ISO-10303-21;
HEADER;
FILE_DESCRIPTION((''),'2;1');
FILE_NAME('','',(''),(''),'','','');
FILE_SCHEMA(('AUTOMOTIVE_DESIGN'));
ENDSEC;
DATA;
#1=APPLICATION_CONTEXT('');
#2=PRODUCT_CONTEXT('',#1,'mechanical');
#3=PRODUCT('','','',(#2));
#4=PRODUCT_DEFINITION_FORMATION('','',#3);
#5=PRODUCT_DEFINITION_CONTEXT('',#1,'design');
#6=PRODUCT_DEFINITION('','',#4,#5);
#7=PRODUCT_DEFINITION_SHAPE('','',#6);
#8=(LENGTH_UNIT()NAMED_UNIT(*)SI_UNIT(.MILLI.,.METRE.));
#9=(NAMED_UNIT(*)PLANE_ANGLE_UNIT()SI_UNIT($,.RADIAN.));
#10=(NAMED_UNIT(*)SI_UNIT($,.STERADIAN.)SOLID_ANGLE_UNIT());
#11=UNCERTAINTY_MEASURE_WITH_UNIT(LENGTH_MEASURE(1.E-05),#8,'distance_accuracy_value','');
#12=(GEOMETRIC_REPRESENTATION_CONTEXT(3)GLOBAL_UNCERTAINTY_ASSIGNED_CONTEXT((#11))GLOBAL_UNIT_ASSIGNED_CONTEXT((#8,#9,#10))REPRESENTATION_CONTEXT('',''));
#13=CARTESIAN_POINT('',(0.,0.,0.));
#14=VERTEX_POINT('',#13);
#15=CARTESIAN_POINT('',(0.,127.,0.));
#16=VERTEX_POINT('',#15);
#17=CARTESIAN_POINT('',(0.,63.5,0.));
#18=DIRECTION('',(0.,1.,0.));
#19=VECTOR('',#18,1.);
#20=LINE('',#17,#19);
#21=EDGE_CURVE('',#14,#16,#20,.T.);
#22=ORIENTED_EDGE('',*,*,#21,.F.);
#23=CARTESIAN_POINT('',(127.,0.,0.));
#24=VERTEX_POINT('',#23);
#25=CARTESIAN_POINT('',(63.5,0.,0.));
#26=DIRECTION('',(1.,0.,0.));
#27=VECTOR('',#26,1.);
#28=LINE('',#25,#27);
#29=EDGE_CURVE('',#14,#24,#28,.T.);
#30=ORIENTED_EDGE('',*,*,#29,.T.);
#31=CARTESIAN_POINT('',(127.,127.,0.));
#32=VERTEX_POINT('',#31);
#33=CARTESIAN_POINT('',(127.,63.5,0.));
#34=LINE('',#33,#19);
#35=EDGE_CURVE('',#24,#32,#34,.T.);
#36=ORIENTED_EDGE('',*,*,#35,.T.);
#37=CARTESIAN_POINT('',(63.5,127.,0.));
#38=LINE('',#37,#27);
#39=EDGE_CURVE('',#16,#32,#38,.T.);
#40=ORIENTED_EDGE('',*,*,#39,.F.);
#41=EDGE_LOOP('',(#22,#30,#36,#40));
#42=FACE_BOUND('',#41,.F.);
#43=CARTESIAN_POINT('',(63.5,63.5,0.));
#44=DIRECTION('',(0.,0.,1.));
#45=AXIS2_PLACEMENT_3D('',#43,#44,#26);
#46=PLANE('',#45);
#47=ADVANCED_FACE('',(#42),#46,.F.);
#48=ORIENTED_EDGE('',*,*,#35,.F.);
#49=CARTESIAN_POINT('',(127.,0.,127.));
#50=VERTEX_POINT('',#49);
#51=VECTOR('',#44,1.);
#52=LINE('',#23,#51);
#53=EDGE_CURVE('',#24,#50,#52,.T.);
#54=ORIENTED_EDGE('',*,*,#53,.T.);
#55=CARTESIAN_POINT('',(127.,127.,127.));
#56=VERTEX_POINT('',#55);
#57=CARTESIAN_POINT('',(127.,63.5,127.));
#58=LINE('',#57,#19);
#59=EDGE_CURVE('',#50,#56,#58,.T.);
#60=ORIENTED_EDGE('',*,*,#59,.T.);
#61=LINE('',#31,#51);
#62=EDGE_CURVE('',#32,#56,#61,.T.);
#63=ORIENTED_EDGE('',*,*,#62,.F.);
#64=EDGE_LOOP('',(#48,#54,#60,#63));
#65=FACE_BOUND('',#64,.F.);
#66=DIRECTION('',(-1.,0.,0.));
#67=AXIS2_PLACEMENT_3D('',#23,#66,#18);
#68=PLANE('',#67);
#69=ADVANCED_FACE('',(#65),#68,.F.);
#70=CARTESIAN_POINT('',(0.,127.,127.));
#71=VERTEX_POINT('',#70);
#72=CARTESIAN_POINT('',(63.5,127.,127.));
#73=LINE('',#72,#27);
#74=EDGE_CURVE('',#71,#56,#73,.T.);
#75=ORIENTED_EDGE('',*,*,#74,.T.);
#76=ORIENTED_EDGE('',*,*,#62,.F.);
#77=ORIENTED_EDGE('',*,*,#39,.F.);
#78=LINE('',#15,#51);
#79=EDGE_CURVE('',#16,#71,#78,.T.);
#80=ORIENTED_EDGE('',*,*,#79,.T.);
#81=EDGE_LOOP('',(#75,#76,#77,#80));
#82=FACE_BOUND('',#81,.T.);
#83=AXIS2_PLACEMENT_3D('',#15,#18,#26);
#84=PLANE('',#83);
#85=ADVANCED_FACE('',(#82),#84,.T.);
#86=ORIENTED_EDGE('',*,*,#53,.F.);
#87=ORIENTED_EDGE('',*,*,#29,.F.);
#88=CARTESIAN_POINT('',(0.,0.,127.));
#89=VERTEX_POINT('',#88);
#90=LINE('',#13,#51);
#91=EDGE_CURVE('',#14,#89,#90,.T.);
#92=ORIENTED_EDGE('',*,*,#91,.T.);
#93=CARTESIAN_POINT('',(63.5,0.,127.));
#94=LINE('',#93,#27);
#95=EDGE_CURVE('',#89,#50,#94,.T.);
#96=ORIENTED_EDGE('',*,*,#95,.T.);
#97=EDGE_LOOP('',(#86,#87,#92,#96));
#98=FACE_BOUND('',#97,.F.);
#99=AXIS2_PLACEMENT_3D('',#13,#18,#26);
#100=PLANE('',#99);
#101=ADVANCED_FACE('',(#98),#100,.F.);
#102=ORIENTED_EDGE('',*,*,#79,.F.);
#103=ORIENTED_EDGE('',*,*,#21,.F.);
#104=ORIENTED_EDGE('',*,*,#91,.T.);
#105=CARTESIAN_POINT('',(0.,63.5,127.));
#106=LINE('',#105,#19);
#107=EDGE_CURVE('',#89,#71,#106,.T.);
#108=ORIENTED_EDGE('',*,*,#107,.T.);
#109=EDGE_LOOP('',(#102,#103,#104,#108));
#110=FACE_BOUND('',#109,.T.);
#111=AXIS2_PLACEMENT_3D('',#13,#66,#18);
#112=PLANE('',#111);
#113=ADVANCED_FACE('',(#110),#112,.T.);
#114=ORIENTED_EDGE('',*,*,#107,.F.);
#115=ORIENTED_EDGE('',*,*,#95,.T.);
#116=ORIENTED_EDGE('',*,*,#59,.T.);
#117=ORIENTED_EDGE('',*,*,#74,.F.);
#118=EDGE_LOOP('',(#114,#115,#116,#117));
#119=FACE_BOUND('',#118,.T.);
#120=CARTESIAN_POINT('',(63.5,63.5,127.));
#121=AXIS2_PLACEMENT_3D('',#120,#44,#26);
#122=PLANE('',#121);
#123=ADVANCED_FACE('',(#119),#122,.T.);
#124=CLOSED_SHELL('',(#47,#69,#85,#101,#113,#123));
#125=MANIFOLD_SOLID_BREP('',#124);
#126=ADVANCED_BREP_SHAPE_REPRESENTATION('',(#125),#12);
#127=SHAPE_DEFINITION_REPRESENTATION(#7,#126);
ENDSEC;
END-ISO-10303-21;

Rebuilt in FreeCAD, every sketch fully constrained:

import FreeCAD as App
import Part
import Sketcher
from FreeCAD import Vector
Q = App.Units.Quantity


def add_polygon(sketch, points):
    """Adds a closed chain of lines whose ends are joined by coincident constraints."""
    first, n = sketch.GeometryCount, len(points)
    for a, b in zip(points, points[1:] + points[:1]):
        sketch.addGeometry(Part.LineSegment(App.Vector(*a, 0), App.Vector(*b, 0)), False)
    for i in range(n):
        sketch.addConstraint(Sketcher.Constraint("Coincident", first + i, 2, first + (i + 1) % n, 1))

doc = App.newDocument("Part")
params = doc.addObject("Spreadsheet::Sheet", "Params")
for row, (alias, value) in enumerate([
    ("sketch1_width", "5 in"),
    ("pad1_length", "5 in"),
], start=1):
    params.set(f"A{row}", alias)
    params.set(f"B{row}", "=" + value)
    params.setAlias(f"B{row}", alias)

body = doc.addObject("PartDesign::Body", "Body")

# Sketch on XY plane
sketch1 = doc.addObject("Sketcher::SketchObject", "Sketch")
body.addObject(sketch1)
sketch1.AttachmentSupport = (doc.XY_Plane, [""])
sketch1.MapMode = "FlatFace"
add_polygon(sketch1, [(0, 127), (0, 0), (127, 0), (127, 127)])  # lines 0-3
sketch1.addConstraint([
    Sketcher.Constraint("Vertical", 0),
    Sketcher.Constraint("Horizontal", 1),
    Sketcher.Constraint("Vertical", 2),
    Sketcher.Constraint("Horizontal", 3),
    Sketcher.Constraint("Coincident", 0, 2, -1, 1),
    Sketcher.Constraint("Equal", 3, 0),
    Sketcher.Constraint("DistanceX", 1, 1, 1, 2, Q("5 in")),
])
sketch1.setExpression("Constraints[10]", "Params.sketch1_width")
pad1 = doc.addObject("PartDesign::Pad", "Pad")
body.addObject(pad1)
pad1.Profile = sketch1
pad1.setExpression("Length", "Params.pad1_length")

doc.recompute()
